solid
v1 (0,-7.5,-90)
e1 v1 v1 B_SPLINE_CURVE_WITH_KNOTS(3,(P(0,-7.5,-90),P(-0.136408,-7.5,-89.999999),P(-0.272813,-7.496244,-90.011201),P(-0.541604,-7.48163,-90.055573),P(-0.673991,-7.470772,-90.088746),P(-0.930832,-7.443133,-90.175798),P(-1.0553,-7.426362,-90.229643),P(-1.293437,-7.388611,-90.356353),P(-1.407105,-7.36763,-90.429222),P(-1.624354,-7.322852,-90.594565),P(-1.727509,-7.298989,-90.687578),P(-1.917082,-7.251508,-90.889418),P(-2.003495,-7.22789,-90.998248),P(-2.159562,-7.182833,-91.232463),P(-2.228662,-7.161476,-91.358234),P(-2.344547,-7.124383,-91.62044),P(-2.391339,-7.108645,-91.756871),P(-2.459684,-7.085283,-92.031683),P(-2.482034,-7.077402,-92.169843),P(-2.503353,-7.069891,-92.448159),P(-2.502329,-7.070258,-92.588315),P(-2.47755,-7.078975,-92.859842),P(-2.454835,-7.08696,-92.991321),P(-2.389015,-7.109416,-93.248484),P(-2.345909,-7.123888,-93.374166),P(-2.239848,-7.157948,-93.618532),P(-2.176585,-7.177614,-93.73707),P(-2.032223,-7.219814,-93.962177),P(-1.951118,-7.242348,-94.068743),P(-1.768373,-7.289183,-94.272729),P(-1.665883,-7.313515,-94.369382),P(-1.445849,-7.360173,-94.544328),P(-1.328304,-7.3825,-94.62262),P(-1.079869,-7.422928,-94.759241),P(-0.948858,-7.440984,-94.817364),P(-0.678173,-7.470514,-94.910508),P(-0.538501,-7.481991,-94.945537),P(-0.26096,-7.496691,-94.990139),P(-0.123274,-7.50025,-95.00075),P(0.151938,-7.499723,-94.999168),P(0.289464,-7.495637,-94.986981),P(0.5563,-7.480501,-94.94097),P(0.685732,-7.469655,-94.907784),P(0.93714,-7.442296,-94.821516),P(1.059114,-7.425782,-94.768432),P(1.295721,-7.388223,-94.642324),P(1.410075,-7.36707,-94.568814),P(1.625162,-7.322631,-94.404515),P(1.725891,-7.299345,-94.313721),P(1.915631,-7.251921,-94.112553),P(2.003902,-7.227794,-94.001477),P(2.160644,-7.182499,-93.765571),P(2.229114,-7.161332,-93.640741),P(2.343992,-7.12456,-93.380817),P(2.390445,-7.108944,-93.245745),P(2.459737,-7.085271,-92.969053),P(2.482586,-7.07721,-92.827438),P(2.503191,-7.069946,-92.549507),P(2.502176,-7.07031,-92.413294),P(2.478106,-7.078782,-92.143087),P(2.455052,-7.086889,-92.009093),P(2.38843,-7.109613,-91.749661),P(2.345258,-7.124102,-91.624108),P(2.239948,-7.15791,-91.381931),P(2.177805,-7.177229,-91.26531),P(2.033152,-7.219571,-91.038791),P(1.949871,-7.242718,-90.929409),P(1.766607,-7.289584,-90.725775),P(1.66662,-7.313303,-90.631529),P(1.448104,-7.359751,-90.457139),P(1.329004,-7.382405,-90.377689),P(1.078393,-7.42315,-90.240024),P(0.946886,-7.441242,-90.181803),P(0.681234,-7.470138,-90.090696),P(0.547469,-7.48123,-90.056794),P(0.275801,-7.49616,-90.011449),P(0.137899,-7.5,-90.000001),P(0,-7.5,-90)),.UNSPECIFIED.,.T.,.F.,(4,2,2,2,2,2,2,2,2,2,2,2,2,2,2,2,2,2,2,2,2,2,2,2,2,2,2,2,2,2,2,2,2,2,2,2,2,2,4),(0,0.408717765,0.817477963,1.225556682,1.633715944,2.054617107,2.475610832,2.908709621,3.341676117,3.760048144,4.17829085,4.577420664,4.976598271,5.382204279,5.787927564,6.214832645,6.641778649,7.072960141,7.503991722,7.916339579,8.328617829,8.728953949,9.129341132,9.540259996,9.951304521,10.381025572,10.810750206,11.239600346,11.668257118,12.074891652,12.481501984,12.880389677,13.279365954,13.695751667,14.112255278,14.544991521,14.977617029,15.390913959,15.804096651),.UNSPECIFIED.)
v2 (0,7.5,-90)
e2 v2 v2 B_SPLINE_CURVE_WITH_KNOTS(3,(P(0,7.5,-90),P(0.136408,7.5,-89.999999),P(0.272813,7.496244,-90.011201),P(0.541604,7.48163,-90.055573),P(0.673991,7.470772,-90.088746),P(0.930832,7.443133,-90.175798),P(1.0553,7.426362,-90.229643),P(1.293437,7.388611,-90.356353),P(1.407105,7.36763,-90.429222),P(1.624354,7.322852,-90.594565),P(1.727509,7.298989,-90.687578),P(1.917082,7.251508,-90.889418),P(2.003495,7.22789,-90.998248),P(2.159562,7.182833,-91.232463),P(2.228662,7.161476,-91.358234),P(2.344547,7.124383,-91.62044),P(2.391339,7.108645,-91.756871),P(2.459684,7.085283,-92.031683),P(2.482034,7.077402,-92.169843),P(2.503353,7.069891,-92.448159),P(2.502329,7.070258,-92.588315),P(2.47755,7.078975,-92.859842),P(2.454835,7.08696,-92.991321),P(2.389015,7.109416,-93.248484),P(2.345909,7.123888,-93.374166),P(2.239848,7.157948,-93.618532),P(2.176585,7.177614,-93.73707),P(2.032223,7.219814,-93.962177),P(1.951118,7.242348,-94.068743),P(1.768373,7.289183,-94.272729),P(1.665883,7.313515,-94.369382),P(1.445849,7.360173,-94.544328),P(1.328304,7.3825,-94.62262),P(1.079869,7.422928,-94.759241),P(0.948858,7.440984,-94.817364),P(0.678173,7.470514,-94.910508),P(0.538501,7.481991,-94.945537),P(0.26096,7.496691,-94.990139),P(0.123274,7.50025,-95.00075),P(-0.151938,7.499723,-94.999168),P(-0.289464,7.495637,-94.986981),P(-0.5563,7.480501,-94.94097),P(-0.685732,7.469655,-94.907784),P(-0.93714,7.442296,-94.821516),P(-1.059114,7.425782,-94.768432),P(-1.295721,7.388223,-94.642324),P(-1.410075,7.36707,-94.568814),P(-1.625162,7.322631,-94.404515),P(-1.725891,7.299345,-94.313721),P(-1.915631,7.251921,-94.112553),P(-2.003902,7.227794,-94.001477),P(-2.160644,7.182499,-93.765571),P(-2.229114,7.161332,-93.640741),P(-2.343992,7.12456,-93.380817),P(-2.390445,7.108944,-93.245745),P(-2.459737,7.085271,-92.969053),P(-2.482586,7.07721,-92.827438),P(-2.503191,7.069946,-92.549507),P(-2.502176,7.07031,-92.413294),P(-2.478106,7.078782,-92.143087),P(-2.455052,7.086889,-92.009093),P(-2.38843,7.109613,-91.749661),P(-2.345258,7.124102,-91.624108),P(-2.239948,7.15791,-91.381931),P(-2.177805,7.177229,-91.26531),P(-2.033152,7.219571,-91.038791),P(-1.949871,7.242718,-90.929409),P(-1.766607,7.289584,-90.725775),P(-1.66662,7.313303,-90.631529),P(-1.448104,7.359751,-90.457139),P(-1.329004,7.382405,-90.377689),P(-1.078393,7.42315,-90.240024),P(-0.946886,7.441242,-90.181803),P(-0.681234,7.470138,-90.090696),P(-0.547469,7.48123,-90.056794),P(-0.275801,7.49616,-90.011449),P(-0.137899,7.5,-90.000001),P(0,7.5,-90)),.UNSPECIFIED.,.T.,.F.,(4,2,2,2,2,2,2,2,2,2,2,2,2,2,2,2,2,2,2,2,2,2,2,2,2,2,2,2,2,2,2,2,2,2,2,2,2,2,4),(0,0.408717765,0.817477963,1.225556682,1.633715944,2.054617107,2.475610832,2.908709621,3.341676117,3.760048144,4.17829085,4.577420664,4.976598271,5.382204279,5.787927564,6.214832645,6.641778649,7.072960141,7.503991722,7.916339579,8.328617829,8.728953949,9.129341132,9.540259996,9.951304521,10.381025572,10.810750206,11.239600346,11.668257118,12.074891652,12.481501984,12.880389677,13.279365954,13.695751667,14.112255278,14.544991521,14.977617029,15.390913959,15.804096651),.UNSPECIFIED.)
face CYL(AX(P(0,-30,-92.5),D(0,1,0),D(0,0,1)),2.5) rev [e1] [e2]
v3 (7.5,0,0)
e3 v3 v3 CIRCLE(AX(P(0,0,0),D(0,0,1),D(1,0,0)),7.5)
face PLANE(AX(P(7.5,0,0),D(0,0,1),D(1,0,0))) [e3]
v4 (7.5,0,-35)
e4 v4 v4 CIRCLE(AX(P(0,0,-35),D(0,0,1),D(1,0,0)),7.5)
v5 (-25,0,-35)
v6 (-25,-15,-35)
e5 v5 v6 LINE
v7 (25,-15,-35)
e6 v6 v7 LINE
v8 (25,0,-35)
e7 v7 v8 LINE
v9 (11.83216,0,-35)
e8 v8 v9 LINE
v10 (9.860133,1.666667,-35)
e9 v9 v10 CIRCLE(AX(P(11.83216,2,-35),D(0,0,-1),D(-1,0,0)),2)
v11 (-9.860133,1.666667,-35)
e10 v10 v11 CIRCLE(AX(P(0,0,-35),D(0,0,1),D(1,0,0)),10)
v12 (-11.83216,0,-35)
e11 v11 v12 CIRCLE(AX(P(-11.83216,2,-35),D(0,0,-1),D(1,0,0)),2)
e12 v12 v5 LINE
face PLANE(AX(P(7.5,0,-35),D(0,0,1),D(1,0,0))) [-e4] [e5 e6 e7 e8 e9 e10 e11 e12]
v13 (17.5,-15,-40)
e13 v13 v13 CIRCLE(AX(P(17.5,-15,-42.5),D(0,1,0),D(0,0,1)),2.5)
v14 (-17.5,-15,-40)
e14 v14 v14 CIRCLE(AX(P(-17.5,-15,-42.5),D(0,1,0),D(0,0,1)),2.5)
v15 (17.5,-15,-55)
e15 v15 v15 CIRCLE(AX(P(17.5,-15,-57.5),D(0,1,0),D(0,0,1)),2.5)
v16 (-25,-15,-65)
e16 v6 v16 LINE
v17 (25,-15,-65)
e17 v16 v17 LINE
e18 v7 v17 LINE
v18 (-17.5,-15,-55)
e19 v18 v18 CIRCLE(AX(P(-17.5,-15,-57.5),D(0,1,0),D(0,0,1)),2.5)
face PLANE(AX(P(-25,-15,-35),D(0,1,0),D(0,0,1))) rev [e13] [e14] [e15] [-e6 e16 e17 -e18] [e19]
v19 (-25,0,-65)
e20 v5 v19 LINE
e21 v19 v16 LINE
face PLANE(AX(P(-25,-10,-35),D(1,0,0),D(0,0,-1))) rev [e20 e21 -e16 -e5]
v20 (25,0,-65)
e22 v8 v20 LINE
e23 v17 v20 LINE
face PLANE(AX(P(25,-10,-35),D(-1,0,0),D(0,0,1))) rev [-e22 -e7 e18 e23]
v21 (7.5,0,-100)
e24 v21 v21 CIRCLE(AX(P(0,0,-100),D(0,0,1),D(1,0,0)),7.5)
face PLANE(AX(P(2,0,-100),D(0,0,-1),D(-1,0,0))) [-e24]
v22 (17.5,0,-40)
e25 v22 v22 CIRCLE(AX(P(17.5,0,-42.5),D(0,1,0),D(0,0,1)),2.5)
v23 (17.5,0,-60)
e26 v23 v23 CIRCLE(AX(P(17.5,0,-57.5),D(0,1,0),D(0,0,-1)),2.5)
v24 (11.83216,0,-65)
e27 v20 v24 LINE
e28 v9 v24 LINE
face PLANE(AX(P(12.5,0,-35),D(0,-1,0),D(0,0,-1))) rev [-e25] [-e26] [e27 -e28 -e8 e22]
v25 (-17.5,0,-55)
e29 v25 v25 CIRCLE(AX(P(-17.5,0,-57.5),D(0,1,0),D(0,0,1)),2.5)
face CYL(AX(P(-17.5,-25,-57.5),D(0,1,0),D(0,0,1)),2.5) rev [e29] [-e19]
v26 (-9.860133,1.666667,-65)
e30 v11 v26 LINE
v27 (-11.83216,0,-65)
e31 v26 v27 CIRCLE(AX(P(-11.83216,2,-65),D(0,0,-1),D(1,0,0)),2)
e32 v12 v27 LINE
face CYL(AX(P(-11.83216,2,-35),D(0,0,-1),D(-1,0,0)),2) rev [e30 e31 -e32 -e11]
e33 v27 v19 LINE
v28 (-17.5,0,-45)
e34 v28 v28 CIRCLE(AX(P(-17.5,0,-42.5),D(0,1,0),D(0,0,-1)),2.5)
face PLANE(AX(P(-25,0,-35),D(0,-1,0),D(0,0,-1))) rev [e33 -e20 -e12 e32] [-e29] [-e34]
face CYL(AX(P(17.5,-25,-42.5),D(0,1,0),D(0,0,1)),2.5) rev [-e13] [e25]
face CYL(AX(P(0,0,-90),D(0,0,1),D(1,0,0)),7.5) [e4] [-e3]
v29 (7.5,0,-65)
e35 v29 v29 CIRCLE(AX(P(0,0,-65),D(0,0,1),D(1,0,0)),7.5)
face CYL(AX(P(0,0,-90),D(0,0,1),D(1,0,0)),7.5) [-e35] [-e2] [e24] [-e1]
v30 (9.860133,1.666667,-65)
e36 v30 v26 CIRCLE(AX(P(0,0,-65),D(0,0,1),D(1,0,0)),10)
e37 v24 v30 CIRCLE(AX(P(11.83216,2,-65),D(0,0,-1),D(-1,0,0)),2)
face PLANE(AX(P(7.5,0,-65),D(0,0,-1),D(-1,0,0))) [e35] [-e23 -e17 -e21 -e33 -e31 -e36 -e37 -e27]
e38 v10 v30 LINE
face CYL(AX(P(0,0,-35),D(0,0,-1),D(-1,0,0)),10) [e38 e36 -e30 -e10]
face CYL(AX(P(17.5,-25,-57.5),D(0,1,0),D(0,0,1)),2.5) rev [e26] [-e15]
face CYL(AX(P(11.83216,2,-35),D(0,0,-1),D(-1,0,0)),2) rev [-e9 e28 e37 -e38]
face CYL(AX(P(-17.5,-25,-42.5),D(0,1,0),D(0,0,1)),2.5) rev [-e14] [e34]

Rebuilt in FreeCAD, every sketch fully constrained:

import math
import FreeCAD as App
import Part
import Sketcher

V = App.Vector
Q = App.Units.Quantity

doc = App.newDocument("Part")
params = doc.addObject("Spreadsheet::Sheet", "Params")
for row, (alias, value) in enumerate([
    ("sketch1_height", "100 mm"),
    ("sketch1_height2", "35 mm"),
    ("sketch1_width", "7.5 mm"),
    ("sketch1_width2", "1.5 mm"),
    ("revolution_angle", "360 deg"),
    ("sketch2_radius", "2 mm"),
    ("sketch2_radius2", "10 mm"),
    ("sketch2_width", "50 mm"),
    ("sketch2_height", "15 mm"),
    ("pad1_length", "15 mm"),
    ("pad1_length2", "15 mm"),
    ("sketch3_diameter", "5 mm"),
    ("pocket1_length", "25 mm"),
    ("sketch4_diameter", "5 mm"),
], start=1):
    params.set(f"A{row}", alias)
    params.set(f"B{row}", "=" + value)
    params.setAlias(f"B{row}", alias)

body = doc.addObject("PartDesign::Body", "Body")

# Sketch on XZ plane
sketch1 = doc.addObject("Sketcher::SketchObject", "Sketch")
body.addObject(sketch1)
sketch1.AttachmentSupport = (doc.XZ_Plane, [""])
sketch1.MapMode = "FlatFace"
sketch1.addGeometry([
    Part.LineSegment(V(0, -100, 0), V(0, 0, 0)),  # 0
    Part.LineSegment(V(0, 0, 0), V(7.5, 0, 0)),  # 1
    Part.LineSegment(V(7.5, 0, 0), V(7.5, -35, 0)),  # 2
    Part.LineSegment(V(7.5, -35, 0), V(9, -35, 0)),  # 3
    Part.LineSegment(V(9, -35, 0), V(9, -65, 0)),  # 4
    Part.LineSegment(V(9, -65, 0), V(7.5, -65, 0)),  # 5
    Part.LineSegment(V(7.5, -65, 0), V(7.5, -100, 0)),  # 6
    Part.LineSegment(V(7.5, -100, 0), V(0, -100, 0)),  # 7
], False)
sketch1.addConstraint([
    Sketcher.Constraint("Coincident", 0, 2, 1, 1),
    Sketcher.Constraint("Coincident", 1, 2, 2, 1),
    Sketcher.Constraint("Coincident", 2, 2, 3, 1),
    Sketcher.Constraint("Coincident", 3, 2, 4, 1),
    Sketcher.Constraint("Coincident", 4, 2, 5, 1),
    Sketcher.Constraint("Coincident", 5, 2, 6, 1),
    Sketcher.Constraint("Coincident", 6, 2, 7, 1),
    Sketcher.Constraint("Coincident", 7, 2, 0, 1),
    Sketcher.Constraint("Vertical", 0),
    Sketcher.Constraint("Horizontal", 1),
    Sketcher.Constraint("Vertical", 2),
    Sketcher.Constraint("Horizontal", 3),
    Sketcher.Constraint("Vertical", 4),
    Sketcher.Constraint("Horizontal", 5),
    Sketcher.Constraint("Vertical", 6),
    Sketcher.Constraint("Horizontal", 7),
    Sketcher.Constraint("Coincident", 0, 2, -1, 1),
    Sketcher.Constraint("Vertical", 2, 2, 5, 2),
    Sketcher.Constraint("Equal", 2, 6),
    Sketcher.Constraint("DistanceY", 0, 1, 0, 2, Q("100 mm")),
    Sketcher.Constraint("DistanceY", 2, 2, 2, 1, Q("35 mm")),
    Sketcher.Constraint("DistanceX", 1, 1, 1, 2, Q("7.5 mm")),
    Sketcher.Constraint("DistanceX", 3, 1, 3, 2, Q("1.5 mm")),
])
sketch1.setExpression("Constraints[19]", "Params.sketch1_height")
sketch1.setExpression("Constraints[20]", "Params.sketch1_height2")
sketch1.setExpression("Constraints[21]", "Params.sketch1_width")
sketch1.setExpression("Constraints[22]", "Params.sketch1_width2")
revolution = doc.addObject("PartDesign::Revolution", "Revolution")
body.addObject(revolution)
revolution.Profile = sketch1
revolution.ReferenceAxis = (sketch1, ["V_Axis"])
revolution.setExpression("Angle", "Params.revolution_angle")

# Sketch on XY plane
sketch2 = doc.addObject("Sketcher::SketchObject", "Sketch001")
body.addObject(sketch2)
sketch2.AttachmentSupport = (doc.XY_Plane, [""])
sketch2.MapMode = "FlatFace"
sketch2.AttachmentOffset = App.Placement(V(0, 0, -50), App.Rotation())
sketch2.addGeometry([
    Part.LineSegment(V(-25, -15, 0), V(25, -15, 0)),  # 0
    Part.LineSegment(V(25, -15, 0), V(25, 0, 0)),  # 1
    Part.LineSegment(V(25, 0, 0), V(11.83216, 0, 0)),  # 2
    Part.ArcOfCircle(Part.Circle(V(11.83216, 2, 0), V(0, 0, 1), 2), math.radians(-170.405932), math.radians(-90)),  # 3
    Part.ArcOfCircle(Part.Circle(V(0, 0, 0), V(0, 0, 1), 10), math.radians(9.594068), math.radians(170.405932)),  # 4
    Part.ArcOfCircle(Part.Circle(V(-11.83216, 2, 0), V(0, 0, 1), 2), math.radians(-90), math.radians(-9.594068)),  # 5
    Part.LineSegment(V(-11.83216, 0, 0), V(-25, 0, 0)),  # 6
    Part.LineSegment(V(-25, 0, 0), V(-25, -15, 0)),  # 7
], False)
sketch2.addConstraint([
    Sketcher.Constraint("Coincident", 0, 2, 1, 1),
    Sketcher.Constraint("Coincident", 1, 2, 2, 1),
    Sketcher.Constraint("Tangent", 2, 2, 3, 2),
    Sketcher.Constraint("Tangent", 3, 1, 4, 1),
    Sketcher.Constraint("Tangent", 4, 2, 5, 2),
    Sketcher.Constraint("Tangent", 5, 1, 6, 1),
    Sketcher.Constraint("Coincident", 6, 2, 7, 1),
    Sketcher.Constraint("Coincident", 7, 2, 0, 1),
    Sketcher.Constraint("Horizontal", 0),
    Sketcher.Constraint("Vertical", 1),
    Sketcher.Constraint("Horizontal", 2),
    Sketcher.Constraint("Horizontal", 6),
    Sketcher.Constraint("Vertical", 7),
    Sketcher.Constraint("Coincident", 4, 3, -1, 1),
    Sketcher.Constraint("Equal", 3, 5),
    Sketcher.Constraint("Symmetric", 2, 2, 5, 1, -1, 1),
    Sketcher.Constraint("Equal", 2, 6),
    Sketcher.Constraint("Radius", 3, Q("2 mm")),
    Sketcher.Constraint("Radius", 4, Q("10 mm")),
    Sketcher.Constraint("DistanceX", 0, 1, 0, 2, Q("50 mm")),
    Sketcher.Constraint("DistanceY", 1, 1, 1, 2, Q("15 mm")),
])
sketch2.setExpression("Constraints[17]", "Params.sketch2_radius")
sketch2.setExpression("Constraints[18]", "Params.sketch2_radius2")
sketch2.setExpression("Constraints[19]", "Params.sketch2_width")
sketch2.setExpression("Constraints[20]", "Params.sketch2_height")
pad1 = doc.addObject("PartDesign::Pad", "Pad")
body.addObject(pad1)
pad1.Profile = sketch2
pad1.Type = "TwoLengths"
pad1.setExpression("Length", "Params.pad1_length")
pad1.setExpression("Length2", "Params.pad1_length2")

# Sketch on XZ plane
sketch3 = doc.addObject("Sketcher::SketchObject", "Sketch002")
body.addObject(sketch3)
sketch3.AttachmentSupport = (doc.XZ_Plane, [""])
sketch3.MapMode = "FlatFace"
sketch3.addGeometry([
    Part.Circle(V(-17.5, -57.5, 0), V(0, 0, 1), 2.5),
    Part.Circle(V(17.5, -57.5, 0), V(0, 0, 1), 2.5),
    Part.Circle(V(17.5, -42.5, 0), V(0, 0, 1), 2.5),
    Part.Circle(V(-17.5, -42.5, 0), V(0, 0, 1), 2.5),
], False)
sketch3.addConstraint([
    Sketcher.Constraint("Equal", 0, 1),
    Sketcher.Constraint("Equal", 1, 2),
    Sketcher.Constraint("Equal", 2, 3),
    Sketcher.Constraint("Symmetric", 0, 3, 1, 3, -2),
    Sketcher.Constraint("Symmetric", 2, 3, 3, 3, -2),
    Sketcher.Constraint("Vertical", 1, 3, 2, 3),
    Sketcher.Constraint("Diameter", 0, Q("5 mm")),
    Sketcher.Constraint("DistanceX", 0, 3, 1, 3, Q("35 mm")),
    Sketcher.Constraint("DistanceY", 1, 3, 2, 3, Q("15 mm")),
    Sketcher.Constraint("DistanceY", 0, 3, -1, 1, Q("57.5 mm")),
])
sketch3.setExpression("Constraints[6]", "Params.sketch3_diameter")
pocket1 = doc.addObject("PartDesign::Pocket", "Pocket")
body.addObject(pocket1)
pocket1.Profile = sketch3
pocket1.setExpression("Length", "Params.pocket1_length")
pocket1.Reversed = True

# Sketch on XZ plane
sketch4 = doc.addObject("Sketcher::SketchObject", "Sketch003")
body.addObject(sketch4)
sketch4.AttachmentSupport = (doc.XZ_Plane, [""])
sketch4.MapMode = "FlatFace"
sketch4.addGeometry(Part.Circle(V(0, -92.5, 0), V(0, 0, 1), 2.5), False)
sketch4.addConstraint([
    Sketcher.Constraint("PointOnObject", 0, 3, -2),
    Sketcher.Constraint("Diameter", 0, Q("5 mm")),
    Sketcher.Constraint("DistanceY", 0, 3, -1, 1, Q("92.5 mm")),
])
sketch4.setExpression("Constraints[1]", "Params.sketch4_diameter")
pocket2 = doc.addObject("PartDesign::Pocket", "Pocket001")
body.addObject(pocket2)
pocket2.Profile = sketch4
pocket2.Type = "ThroughAll"
pocket2.Midplane = True

doc.recompute()
